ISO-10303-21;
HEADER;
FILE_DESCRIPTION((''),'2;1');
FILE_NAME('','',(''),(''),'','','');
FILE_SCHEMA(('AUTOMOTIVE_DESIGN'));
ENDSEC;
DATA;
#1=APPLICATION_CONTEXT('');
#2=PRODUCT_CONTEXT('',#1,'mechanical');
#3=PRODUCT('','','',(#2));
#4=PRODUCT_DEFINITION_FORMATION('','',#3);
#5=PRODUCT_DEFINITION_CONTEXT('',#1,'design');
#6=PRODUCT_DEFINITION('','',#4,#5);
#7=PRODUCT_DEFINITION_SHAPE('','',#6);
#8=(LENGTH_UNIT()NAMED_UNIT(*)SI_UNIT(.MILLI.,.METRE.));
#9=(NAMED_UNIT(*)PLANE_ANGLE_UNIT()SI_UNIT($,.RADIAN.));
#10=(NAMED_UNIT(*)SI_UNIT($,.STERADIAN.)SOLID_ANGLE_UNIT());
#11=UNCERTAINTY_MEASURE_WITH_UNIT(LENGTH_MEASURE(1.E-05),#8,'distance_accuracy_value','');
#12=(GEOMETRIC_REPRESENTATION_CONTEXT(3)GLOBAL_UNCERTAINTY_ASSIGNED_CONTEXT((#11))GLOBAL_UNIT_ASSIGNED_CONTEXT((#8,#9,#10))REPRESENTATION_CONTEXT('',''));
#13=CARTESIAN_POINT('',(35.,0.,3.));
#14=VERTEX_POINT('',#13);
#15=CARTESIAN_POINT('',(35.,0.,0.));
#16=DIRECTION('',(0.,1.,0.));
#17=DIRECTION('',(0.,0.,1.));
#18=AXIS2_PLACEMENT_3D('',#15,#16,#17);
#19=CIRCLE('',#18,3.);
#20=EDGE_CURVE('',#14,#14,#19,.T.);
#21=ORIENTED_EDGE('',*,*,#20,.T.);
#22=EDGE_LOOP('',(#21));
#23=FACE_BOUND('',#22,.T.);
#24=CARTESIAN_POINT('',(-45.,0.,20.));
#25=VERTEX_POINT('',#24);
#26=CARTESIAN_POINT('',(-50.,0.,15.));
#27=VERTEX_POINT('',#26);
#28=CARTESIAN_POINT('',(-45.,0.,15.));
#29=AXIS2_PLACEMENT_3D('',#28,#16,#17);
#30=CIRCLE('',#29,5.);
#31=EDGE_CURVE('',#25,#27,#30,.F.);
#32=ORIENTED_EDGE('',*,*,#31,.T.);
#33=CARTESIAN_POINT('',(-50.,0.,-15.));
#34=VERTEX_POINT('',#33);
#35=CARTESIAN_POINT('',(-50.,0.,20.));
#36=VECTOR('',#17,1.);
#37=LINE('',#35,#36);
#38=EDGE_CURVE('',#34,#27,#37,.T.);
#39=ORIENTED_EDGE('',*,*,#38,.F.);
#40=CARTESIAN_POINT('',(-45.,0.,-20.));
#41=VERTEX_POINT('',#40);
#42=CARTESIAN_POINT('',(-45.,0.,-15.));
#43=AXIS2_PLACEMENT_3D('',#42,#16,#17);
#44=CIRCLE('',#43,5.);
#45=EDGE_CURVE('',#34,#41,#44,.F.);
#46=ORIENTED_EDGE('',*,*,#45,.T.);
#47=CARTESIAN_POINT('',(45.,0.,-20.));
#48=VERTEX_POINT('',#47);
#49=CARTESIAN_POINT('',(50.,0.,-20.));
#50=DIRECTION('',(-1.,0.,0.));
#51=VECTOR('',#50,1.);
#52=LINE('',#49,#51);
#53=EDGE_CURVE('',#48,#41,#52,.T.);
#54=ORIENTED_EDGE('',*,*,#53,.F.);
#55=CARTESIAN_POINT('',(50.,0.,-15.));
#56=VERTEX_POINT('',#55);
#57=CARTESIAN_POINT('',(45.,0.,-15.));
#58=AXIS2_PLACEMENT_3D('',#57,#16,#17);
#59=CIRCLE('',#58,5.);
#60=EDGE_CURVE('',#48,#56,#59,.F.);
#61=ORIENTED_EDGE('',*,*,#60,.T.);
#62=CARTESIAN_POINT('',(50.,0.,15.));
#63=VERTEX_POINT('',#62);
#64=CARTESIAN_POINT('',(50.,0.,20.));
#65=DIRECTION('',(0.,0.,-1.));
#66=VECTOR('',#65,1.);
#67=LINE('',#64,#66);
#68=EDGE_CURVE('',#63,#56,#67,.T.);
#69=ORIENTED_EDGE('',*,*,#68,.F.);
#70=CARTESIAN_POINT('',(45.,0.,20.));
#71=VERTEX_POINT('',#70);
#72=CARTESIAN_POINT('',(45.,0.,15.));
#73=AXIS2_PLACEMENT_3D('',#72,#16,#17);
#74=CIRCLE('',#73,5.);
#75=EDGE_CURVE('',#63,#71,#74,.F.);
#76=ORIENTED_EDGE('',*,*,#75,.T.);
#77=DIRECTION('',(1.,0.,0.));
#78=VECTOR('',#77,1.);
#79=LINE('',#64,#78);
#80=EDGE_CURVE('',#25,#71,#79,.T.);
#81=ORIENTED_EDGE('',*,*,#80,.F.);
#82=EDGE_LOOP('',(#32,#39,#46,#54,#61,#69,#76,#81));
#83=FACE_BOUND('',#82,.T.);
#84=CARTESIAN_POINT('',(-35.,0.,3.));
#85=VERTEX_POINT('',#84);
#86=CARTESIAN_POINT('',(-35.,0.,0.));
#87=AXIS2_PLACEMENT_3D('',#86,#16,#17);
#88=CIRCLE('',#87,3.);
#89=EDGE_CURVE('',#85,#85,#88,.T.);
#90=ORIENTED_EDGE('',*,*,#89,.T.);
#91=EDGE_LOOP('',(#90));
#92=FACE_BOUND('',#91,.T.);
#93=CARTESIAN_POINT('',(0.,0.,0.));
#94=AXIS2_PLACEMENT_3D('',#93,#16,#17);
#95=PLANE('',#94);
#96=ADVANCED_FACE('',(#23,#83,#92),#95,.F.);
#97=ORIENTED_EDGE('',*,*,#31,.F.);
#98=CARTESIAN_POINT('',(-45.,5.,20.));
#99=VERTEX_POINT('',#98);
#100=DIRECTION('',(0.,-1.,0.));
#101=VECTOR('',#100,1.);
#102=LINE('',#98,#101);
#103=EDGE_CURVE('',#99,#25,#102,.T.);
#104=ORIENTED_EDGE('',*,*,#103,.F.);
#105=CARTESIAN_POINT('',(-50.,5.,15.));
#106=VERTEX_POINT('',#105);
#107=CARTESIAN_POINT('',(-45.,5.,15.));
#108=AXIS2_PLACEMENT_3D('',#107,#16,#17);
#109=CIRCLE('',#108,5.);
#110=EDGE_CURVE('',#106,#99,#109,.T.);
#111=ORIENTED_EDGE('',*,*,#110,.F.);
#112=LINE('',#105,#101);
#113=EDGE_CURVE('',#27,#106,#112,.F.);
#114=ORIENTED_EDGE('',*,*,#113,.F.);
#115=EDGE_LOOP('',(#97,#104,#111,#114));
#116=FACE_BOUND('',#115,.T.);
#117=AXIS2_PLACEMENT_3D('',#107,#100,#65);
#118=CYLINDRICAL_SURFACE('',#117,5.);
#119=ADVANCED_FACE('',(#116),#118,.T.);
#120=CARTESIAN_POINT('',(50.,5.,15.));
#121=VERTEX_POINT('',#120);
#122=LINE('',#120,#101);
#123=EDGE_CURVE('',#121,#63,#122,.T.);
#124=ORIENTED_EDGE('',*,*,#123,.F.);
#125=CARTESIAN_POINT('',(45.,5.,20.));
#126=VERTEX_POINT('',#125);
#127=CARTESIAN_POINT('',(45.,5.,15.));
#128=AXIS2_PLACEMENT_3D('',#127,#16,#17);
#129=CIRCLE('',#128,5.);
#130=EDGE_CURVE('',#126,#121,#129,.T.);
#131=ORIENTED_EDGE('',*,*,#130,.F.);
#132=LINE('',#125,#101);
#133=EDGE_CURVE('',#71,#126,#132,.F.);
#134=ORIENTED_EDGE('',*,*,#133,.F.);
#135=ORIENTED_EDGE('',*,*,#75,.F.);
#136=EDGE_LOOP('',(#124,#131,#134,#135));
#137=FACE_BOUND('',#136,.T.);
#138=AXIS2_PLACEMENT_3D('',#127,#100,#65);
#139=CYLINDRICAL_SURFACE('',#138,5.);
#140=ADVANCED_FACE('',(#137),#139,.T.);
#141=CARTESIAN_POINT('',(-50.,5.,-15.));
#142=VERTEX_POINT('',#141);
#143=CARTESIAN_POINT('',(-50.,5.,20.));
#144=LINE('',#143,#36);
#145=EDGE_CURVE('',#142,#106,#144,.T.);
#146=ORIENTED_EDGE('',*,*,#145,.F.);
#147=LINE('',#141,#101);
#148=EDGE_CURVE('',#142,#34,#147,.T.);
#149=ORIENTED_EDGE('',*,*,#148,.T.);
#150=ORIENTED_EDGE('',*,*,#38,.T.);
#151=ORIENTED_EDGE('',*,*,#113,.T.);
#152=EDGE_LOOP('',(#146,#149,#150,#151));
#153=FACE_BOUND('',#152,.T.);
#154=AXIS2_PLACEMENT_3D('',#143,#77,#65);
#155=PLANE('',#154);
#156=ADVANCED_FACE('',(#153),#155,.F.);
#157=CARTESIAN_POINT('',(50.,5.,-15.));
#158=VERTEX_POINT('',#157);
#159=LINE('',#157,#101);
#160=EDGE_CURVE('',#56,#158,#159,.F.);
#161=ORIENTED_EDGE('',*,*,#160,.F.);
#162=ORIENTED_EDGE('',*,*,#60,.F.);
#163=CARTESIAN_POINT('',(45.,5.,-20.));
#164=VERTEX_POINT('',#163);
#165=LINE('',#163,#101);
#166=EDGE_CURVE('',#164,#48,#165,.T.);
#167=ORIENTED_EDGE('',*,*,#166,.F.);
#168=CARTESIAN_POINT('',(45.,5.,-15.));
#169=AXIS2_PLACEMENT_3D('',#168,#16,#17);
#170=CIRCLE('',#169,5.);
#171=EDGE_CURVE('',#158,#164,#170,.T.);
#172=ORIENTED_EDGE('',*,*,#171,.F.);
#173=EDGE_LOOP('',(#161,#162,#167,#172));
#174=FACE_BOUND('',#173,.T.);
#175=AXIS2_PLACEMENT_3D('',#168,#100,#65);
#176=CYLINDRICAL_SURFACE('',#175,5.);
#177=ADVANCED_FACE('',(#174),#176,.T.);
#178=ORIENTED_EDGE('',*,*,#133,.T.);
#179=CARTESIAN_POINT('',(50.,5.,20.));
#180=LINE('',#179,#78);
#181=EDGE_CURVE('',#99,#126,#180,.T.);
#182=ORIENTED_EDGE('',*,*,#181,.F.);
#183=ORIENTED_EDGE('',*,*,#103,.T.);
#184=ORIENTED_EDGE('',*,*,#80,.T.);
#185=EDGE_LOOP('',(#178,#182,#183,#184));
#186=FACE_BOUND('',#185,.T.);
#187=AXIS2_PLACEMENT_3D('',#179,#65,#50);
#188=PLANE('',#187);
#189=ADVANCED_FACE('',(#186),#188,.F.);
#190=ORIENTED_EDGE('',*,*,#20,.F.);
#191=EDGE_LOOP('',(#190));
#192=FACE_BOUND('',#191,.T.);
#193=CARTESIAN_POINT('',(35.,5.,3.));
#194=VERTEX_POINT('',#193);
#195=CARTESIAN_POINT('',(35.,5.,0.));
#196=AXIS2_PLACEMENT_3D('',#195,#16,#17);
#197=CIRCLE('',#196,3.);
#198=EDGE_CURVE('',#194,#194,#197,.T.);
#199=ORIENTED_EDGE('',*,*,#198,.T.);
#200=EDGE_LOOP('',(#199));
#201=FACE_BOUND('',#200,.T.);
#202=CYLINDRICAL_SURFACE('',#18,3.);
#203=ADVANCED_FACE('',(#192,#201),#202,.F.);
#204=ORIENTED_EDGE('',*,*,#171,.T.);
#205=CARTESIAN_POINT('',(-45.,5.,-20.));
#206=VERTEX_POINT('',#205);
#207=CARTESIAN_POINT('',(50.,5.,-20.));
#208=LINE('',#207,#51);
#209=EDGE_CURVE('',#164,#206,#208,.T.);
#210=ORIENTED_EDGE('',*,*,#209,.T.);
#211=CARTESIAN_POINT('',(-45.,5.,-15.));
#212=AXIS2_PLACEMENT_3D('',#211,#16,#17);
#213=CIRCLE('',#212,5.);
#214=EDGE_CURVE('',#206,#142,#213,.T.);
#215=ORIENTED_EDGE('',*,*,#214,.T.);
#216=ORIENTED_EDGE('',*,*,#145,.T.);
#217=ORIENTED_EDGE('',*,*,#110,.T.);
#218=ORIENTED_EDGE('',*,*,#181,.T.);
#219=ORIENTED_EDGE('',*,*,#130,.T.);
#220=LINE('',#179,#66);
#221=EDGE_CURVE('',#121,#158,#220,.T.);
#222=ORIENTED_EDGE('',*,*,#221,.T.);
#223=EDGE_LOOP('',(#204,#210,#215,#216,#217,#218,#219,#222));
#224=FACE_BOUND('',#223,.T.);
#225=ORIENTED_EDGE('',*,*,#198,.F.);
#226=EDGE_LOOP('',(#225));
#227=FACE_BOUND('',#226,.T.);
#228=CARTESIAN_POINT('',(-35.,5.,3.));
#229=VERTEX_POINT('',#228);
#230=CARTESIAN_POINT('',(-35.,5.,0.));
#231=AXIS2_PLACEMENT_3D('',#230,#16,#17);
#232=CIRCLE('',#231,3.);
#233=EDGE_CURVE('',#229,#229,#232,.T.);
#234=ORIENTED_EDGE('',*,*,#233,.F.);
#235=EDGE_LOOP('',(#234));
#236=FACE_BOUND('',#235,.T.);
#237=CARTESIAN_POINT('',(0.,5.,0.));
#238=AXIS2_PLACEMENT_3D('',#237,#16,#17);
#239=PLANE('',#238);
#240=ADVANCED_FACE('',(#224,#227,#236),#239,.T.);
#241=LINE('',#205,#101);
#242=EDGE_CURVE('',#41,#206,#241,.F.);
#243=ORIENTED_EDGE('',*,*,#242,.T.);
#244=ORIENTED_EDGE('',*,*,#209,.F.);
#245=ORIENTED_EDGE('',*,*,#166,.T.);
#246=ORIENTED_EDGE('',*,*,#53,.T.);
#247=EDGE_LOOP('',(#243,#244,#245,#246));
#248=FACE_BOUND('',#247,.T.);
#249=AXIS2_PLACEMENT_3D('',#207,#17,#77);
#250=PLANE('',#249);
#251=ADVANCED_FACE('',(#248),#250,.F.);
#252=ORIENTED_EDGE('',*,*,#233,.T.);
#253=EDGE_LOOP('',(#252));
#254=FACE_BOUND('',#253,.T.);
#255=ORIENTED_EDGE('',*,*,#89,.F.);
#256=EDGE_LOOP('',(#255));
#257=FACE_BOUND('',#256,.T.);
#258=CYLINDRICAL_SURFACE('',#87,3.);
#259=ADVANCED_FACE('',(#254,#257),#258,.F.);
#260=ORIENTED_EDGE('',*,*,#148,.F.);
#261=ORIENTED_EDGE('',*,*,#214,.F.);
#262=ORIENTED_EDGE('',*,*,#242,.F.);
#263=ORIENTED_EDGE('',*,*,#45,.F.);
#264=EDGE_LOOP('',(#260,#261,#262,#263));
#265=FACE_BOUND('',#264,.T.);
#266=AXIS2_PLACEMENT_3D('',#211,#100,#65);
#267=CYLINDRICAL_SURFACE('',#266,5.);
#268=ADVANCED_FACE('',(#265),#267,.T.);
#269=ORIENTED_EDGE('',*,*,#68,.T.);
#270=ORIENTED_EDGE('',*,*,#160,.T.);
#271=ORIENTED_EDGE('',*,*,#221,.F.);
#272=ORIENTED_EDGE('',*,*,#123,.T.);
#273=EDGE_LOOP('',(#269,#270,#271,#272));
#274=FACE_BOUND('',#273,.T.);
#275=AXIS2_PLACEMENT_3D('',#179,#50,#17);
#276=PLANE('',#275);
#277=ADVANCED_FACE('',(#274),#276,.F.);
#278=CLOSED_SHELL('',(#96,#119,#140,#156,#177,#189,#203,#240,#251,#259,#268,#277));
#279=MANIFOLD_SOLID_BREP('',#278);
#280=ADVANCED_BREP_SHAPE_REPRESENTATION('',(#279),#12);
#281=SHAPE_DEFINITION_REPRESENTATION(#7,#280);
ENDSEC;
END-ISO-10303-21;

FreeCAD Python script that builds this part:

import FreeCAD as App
import Part
import Sketcher

V = App.Vector


def edges_at(feature, points):
    """Names of the edges that pass closest to the given points."""
    edges = feature.Shape.Edges
    near = lambda p: min(range(len(edges)), key=lambda i: edges[i].distToShape(Part.Vertex(*p))[0])
    return sorted({f"Edge{near(p) + 1}" for p in points})


def add_polygon(sketch, points):
    """Adds a closed chain of lines whose ends are joined by coincident constraints."""
    first, n = sketch.GeometryCount, len(points)
    for a, b in zip(points, points[1:] + points[:1]):
        sketch.addGeometry(Part.LineSegment(App.Vector(*a, 0), App.Vector(*b, 0)), False)
    for i in range(n):
        sketch.addConstraint(Sketcher.Constraint("Coincident", first + i, 2, first + (i + 1) % n, 1))

doc = App.newDocument("Part")
params = doc.addObject("Spreadsheet::Sheet", "Params")
for row, (alias, value) in enumerate([
    ("sketch1_width", "100 mm"),
    ("sketch1_height", "40 mm"),
    ("pad1_length", "5 mm"),
    ("fillet_radius", "5 mm"),
    ("sketch2_diameter", "6 mm"),
    ("pocket1_length", "5 mm"),
], start=1):
    params.set(f"A{row}", alias)
    params.set(f"B{row}", "=" + value)
    params.setAlias(f"B{row}", alias)

body = doc.addObject("PartDesign::Body", "Body")

# Sketch on XZ plane
sketch1 = body.newObject("Sketcher::SketchObject", "Sketch")
sketch1.AttachmentSupport = (doc.getObject("XZ_Plane"), [""])
sketch1.MapMode = "FlatFace"
add_polygon(sketch1, [(-50, -20), (-50, 20), (50, 20), (50, -20)])  # lines 0-3
sketch1.addConstraint(Sketcher.Constraint("Vertical", 0))
sketch1.addConstraint(Sketcher.Constraint("Horizontal", 1))
sketch1.addConstraint(Sketcher.Constraint("Vertical", 2))
sketch1.addConstraint(Sketcher.Constraint("Horizontal", 3))
sketch1.addConstraint(Sketcher.Constraint("Symmetric", 0, 2, 2, 2, -1, 1))
sketch1.addConstraint(Sketcher.Constraint("DistanceX", 1, 1, 1, 2, 100.0))
sketch1.addConstraint(Sketcher.Constraint("DistanceY", 0, 1, 0, 2, 40.0))
sketch1.setExpression("Constraints[9]", "Params.sketch1_width")
sketch1.setExpression("Constraints[10]", "Params.sketch1_height")
pad1 = body.newObject("PartDesign::Pad", "Pad")
pad1.Profile = sketch1
pad1.setExpression("Length", "Params.pad1_length")
pad1.Reversed = True
doc.recompute()

fillet = body.newObject("PartDesign::Fillet", "Fillet")
fillet.Base = (pad1, edges_at(pad1, [
    (-50, 2.5, -20),
    (50, 2.5, -20),
    (50, 2.5, 20),
    (-50, 2.5, 20),
]))
fillet.setExpression("Radius", "Params.fillet_radius")

# Sketch on XZ plane
sketch2 = body.newObject("Sketcher::SketchObject", "Sketch001")
sketch2.AttachmentSupport = (doc.getObject("XZ_Plane"), [""])
sketch2.MapMode = "FlatFace"
sketch2.AttachmentOffset = App.Placement(V(0, 0, -5), App.Rotation())
sketch2.addGeometry(Part.Circle(V(-35, 0, 0), V(0, 0, 1), 3), False)
sketch2.addGeometry(Part.Circle(V(35, 0, 0), V(0, 0, 1), 3), False)
sketch2.addConstraint(Sketcher.Constraint("Equal", 0, 1))
sketch2.addConstraint(Sketcher.Constraint("Symmetric", 0, 3, 1, 3, -1, 1))
sketch2.addConstraint(Sketcher.Constraint("PointOnObject", 0, 3, -1))
sketch2.addConstraint(Sketcher.Constraint("Diameter", 0, 6.0))
sketch2.addConstraint(Sketcher.Constraint("DistanceX", 0, 3, -1, 1, 35.0))
sketch2.setExpression("Constraints[3]", "Params.sketch2_diameter")
pocket1 = body.newObject("PartDesign::Pocket", "Pocket")
pocket1.Profile = sketch2
pocket1.setExpression("Length", "Params.pocket1_length")
pocket1.Reversed = True

doc.recompute()
